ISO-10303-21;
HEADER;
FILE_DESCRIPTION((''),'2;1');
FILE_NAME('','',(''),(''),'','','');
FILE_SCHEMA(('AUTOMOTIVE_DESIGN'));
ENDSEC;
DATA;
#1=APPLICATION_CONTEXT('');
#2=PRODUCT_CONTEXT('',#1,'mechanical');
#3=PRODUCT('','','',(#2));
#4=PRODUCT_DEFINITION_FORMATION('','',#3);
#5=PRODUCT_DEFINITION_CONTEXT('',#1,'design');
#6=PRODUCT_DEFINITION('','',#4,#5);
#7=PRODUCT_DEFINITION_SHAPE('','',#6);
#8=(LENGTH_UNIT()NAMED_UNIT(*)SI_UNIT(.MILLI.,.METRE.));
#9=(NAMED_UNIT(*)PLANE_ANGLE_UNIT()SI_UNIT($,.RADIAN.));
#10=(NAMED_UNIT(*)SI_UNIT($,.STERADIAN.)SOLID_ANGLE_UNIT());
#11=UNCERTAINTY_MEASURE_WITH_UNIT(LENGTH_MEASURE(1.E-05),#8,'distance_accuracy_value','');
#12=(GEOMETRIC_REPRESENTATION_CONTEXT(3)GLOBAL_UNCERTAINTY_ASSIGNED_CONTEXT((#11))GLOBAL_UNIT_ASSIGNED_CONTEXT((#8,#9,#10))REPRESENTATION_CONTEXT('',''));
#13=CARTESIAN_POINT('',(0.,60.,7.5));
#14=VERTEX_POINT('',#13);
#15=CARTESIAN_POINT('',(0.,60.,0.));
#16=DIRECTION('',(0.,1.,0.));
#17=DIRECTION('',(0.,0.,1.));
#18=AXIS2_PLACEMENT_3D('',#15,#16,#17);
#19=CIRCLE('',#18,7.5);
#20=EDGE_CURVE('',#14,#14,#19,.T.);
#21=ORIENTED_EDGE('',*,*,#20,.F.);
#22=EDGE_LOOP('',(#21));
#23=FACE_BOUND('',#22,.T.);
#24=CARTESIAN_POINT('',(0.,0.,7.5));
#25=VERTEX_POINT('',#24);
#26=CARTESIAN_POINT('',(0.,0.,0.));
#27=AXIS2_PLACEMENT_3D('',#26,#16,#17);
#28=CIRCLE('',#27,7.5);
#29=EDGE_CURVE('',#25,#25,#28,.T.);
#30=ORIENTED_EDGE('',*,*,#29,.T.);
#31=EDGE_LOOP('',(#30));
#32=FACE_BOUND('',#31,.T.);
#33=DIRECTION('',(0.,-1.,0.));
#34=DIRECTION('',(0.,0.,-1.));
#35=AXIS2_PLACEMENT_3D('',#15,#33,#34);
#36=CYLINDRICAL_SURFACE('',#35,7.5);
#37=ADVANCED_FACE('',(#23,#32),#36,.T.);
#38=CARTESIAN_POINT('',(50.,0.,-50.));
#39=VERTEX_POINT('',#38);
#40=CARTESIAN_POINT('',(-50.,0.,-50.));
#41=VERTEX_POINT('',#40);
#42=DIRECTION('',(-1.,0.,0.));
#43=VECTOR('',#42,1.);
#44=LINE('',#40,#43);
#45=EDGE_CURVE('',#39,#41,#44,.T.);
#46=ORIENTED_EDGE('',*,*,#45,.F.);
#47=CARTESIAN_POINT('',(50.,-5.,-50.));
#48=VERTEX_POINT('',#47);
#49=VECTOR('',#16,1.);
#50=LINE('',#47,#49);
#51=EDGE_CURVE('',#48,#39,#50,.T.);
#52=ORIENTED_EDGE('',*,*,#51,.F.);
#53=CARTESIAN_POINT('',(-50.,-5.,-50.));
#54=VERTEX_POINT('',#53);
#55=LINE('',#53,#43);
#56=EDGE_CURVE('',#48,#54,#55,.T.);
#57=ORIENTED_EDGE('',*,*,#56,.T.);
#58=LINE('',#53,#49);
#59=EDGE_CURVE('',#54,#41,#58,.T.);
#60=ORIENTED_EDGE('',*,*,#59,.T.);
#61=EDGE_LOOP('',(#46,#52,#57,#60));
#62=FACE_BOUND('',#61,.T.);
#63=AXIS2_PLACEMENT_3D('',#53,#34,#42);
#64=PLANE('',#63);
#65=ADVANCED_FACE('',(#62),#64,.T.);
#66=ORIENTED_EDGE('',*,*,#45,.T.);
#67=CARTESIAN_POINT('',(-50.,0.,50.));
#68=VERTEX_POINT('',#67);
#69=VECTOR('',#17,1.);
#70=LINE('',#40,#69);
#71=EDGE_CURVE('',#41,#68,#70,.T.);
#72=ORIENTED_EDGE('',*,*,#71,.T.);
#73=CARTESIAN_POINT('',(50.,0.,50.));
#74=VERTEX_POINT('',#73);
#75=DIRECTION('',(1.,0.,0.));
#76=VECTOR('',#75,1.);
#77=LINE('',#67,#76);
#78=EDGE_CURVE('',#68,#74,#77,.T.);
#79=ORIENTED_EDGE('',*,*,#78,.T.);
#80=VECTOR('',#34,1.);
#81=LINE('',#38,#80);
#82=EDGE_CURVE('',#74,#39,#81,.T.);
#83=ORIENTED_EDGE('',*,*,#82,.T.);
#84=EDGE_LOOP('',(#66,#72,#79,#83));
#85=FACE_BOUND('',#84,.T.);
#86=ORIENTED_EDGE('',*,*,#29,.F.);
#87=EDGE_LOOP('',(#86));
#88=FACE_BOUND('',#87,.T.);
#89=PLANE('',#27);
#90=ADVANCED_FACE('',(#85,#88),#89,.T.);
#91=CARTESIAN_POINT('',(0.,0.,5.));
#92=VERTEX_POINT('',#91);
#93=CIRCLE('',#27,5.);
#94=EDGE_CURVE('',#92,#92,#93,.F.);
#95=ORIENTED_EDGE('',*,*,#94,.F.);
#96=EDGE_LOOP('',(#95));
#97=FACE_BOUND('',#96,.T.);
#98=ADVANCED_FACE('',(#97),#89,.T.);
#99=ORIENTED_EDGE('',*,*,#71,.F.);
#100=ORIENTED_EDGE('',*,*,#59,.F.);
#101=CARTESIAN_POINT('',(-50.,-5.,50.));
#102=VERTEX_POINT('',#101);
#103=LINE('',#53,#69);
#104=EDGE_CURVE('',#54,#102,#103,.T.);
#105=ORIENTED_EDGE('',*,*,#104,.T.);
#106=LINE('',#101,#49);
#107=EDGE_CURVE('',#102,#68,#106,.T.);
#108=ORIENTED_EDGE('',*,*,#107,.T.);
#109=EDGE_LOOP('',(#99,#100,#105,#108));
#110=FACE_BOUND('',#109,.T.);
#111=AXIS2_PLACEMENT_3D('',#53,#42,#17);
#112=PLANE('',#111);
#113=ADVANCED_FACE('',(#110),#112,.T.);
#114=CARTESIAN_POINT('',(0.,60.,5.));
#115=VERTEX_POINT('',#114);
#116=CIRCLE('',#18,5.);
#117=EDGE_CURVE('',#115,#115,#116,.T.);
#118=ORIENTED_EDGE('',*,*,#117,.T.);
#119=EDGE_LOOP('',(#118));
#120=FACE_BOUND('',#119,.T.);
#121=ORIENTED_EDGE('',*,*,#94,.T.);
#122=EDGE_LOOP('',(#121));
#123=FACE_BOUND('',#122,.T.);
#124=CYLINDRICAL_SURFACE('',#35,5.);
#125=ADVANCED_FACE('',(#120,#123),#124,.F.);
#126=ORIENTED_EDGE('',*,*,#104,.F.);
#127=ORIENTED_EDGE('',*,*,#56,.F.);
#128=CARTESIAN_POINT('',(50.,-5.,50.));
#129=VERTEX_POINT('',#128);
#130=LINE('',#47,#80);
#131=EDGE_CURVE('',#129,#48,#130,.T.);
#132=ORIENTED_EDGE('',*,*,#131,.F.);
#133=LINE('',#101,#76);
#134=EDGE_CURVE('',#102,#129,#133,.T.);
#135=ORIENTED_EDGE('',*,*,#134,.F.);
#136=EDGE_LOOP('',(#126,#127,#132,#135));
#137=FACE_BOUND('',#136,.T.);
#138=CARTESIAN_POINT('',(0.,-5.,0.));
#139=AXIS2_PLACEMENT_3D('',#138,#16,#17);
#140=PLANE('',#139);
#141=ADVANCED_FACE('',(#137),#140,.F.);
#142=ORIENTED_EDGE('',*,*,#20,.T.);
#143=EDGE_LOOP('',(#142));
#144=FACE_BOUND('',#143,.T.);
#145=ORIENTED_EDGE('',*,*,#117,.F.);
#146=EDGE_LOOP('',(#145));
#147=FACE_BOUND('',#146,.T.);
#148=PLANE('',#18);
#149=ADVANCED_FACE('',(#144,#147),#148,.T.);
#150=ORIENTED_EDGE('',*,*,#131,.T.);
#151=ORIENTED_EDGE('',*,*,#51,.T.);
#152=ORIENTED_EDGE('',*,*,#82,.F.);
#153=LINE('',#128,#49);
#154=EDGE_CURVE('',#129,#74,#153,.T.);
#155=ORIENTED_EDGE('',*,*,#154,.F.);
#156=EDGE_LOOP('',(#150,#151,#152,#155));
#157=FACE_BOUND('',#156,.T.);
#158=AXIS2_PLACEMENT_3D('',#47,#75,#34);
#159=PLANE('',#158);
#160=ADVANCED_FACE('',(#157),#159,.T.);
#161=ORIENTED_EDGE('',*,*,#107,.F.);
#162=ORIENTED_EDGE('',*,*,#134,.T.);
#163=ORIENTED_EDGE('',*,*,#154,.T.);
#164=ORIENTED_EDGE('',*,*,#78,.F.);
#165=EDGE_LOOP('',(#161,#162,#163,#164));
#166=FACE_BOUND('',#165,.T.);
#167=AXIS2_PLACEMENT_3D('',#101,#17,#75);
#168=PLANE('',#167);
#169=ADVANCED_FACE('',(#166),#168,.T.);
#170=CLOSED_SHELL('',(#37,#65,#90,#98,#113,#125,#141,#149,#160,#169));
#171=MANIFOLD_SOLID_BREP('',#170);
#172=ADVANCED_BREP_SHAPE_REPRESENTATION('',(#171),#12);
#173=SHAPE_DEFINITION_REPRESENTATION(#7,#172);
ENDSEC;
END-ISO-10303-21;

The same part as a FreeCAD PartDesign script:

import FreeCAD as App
import Part
import Sketcher

V = App.Vector

doc = App.newDocument("Part")
body = doc.addObject("PartDesign::Body", "Body")

# Sketch on XZ plane
sketch1 = body.newObject("Sketcher::SketchObject", "Sketch")
sketch1.AttachmentSupport = (doc.getObject("XZ_Plane"), [""])
sketch1.MapMode = "FlatFace"
sketch1.addGeometry(Part.LineSegment(V(-50, -50, 0), V(-50, 50, 0)), False)
sketch1.addGeometry(Part.LineSegment(V(-50, 50, 0), V(50, 50, 0)), False)
sketch1.addGeometry(Part.LineSegment(V(50, 50, 0), V(50, -50, 0)), False)
sketch1.addGeometry(Part.LineSegment(V(50, -50, 0), V(-50, -50, 0)), False)
sketch1.addConstraint(Sketcher.Constraint("Coincident", 0, 2, 1, 1))
sketch1.addConstraint(Sketcher.Constraint("Coincident", 1, 2, 2, 1))
sketch1.addConstraint(Sketcher.Constraint("Coincident", 2, 2, 3, 1))
sketch1.addConstraint(Sketcher.Constraint("Coincident", 3, 2, 0, 1))
sketch1.addConstraint(Sketcher.Constraint("Vertical", 0))
sketch1.addConstraint(Sketcher.Constraint("Horizontal", 1))
sketch1.addConstraint(Sketcher.Constraint("Vertical", 2))
sketch1.addConstraint(Sketcher.Constraint("Horizontal", 3))
sketch1.addConstraint(Sketcher.Constraint("Symmetric", 0, 2, 2, 2, -1, 1))
sketch1.addConstraint(Sketcher.Constraint("Equal", 3, 0))
sketch1.addConstraint(Sketcher.Constraint("DistanceX", 1, 1, 1, 2, 100.0))
pad1 = body.newObject("PartDesign::Pad", "Pad")
pad1.Profile = sketch1
pad1.Length = 5

# Sketch on XZ plane
sketch2 = body.newObject("Sketcher::SketchObject", "Sketch001")
sketch2.AttachmentSupport = (doc.getObject("XZ_Plane"), [""])
sketch2.MapMode = "FlatFace"
sketch2.addGeometry(Part.Circle(V(0, 0, 0), V(0, 0, 1), 7.5), False)
sketch2.addGeometry(Part.Circle(V(0, 0, 0), V(0, 0, 1), 5), False)
sketch2.addConstraint(Sketcher.Constraint("Coincident", 0, 3, -1, 1))
sketch2.addConstraint(Sketcher.Constraint("Coincident", 1, 3, -1, 1))
sketch2.addConstraint(Sketcher.Constraint("Diameter", 0, 15.0))
sketch2.addConstraint(Sketcher.Constraint("Diameter", 1, 10.0))
pad2 = body.newObject("PartDesign::Pad", "Pad001")
pad2.Profile = sketch2
pad2.Length = 60
pad2.Reversed = True

doc.recompute()
